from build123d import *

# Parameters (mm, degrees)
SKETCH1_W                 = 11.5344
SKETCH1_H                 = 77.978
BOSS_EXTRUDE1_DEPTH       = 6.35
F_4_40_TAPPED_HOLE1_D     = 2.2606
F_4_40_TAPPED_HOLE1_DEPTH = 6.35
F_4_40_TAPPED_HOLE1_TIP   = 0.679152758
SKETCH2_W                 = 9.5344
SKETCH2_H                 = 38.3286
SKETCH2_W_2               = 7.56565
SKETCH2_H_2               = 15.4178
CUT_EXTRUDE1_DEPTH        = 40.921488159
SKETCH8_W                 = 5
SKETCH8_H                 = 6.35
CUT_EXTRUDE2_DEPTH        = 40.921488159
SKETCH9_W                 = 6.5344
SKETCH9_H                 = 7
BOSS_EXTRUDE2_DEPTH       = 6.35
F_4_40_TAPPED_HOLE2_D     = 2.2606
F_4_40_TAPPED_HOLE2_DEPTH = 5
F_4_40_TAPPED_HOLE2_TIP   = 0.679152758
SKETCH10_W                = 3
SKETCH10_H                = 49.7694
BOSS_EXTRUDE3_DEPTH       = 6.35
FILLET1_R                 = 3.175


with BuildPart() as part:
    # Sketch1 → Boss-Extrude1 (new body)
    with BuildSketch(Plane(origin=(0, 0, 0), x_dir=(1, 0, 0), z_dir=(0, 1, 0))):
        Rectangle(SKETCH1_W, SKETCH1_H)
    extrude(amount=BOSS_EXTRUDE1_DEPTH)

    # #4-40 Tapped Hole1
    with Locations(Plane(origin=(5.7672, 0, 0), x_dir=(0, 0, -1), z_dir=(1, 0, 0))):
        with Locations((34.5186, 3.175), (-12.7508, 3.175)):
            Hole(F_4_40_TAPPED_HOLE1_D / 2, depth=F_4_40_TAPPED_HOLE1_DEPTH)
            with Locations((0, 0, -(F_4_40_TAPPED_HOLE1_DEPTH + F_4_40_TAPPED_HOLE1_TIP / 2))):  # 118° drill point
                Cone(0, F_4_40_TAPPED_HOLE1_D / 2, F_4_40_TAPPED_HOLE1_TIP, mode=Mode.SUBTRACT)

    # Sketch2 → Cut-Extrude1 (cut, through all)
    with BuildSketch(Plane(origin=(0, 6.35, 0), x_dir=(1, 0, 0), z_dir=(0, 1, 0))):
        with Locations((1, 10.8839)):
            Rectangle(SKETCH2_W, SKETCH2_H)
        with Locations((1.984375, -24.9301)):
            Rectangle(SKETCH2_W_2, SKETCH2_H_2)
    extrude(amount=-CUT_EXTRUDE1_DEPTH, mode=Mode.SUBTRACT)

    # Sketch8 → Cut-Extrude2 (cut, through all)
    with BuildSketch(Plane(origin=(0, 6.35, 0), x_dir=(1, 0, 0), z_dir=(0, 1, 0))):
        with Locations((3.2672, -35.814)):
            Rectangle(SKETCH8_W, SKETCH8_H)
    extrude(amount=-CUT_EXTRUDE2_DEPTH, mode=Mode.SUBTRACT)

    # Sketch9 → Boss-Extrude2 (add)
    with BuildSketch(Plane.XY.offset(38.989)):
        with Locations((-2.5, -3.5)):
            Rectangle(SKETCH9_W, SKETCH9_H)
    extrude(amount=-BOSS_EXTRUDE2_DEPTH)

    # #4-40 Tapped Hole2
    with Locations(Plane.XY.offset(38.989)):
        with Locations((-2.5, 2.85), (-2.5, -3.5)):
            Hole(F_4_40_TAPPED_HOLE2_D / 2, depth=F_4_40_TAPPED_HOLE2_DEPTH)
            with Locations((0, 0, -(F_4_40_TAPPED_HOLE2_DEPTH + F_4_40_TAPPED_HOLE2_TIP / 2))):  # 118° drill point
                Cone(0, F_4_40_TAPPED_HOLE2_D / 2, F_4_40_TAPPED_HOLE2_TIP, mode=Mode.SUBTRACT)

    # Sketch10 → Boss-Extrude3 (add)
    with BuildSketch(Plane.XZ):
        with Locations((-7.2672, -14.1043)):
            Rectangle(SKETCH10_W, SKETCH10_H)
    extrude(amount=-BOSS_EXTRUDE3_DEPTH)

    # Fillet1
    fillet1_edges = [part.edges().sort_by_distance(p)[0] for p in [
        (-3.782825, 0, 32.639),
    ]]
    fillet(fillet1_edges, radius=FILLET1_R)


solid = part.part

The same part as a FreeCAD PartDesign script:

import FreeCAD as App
import Part
import Sketcher

V = App.Vector
Q = App.Units.Quantity


def edges_at(feature, points):
    """Names of the edges that pass closest to the given points."""
    edges = feature.Shape.Edges
    near = lambda p: min(range(len(edges)), key=lambda i: edges[i].distToShape(Part.Vertex(*p))[0])
    return sorted({f"Edge{near(p) + 1}" for p in points})

doc = App.newDocument("Part")
body = doc.addObject("PartDesign::Body", "Body")

sketch1 = body.newObject("Sketcher::SketchObject", "Sketch")
sketch1.AttachmentSupport = (doc.getObject("XZ_Plane"), [""])
sketch1.MapMode = "FlatFace"
sketch1.addGeometry([
    Part.LineSegment(V(-6, -39, 0), V(-6, 39, 0)),
    Part.LineSegment(V(-6, 39, 0), V(6, 39, 0)),
    Part.LineSegment(V(6, 39, 0), V(6, -39, 0)),
    Part.LineSegment(V(6, -39, 0), V(-6, -39, 0)),
], False)
sketch1.addConstraint([
    Sketcher.Constraint("Coincident", 0, 2, 1, 1),
    Sketcher.Constraint("Coincident", 1, 2, 2, 1),
    Sketcher.Constraint("Coincident", 2, 2, 3, 1),
    Sketcher.Constraint("Coincident", 3, 2, 0, 1),
    Sketcher.Constraint("Vertical", 0),
    Sketcher.Constraint("Horizontal", 1),
    Sketcher.Constraint("Vertical", 2),
    Sketcher.Constraint("Horizontal", 3),
    Sketcher.Constraint("Symmetric", 0, 2, 2, 2, -1, 1),
    Sketcher.Constraint("DistanceY", 0, 1, 0, 2, Q("3.07 in")),
    Sketcher.Constraint("DistanceX", 1, 1, 1, 2, Q("11.5344 mm")),
])
pad1 = body.newObject("PartDesign::Pad", "Pad")
pad1.Profile = sketch1
pad1.Length = Q("0.25 in")
pad1.Reversed = True

sketch2 = body.newObject("Sketcher::SketchObject", "Sketch001")
sketch2.AttachmentSupport = (doc.getObject("YZ_Plane"), [""])
sketch2.MapMode = "FlatFace"
sketch2.AttachmentOffset = App.Placement(V(0, 0, 5.7672), App.Rotation())
sketch2.addGeometry([
    Part.Circle(V(3.2, -34.5, 0), V(0, 0, 1), 1.1),
    Part.Circle(V(3.2, 12.8, 0), V(0, 0, 1), 1.1),
], False)
sketch2.addConstraint([
    Sketcher.Constraint("Equal", 0, 1),
    Sketcher.Constraint("Vertical", 0, 3, 1, 3),
    Sketcher.Constraint("Diameter", 0, Q("0.089 in")),
    Sketcher.Constraint("DistanceX", -1, 1, 0, 3, Q("0.125 in")),
    Sketcher.Constraint("DistanceY", 0, 3, -1, 1, Q("1.359 in")),
    Sketcher.Constraint("DistanceY", -1, 1, 1, 3, Q("0.502 in")),
])
doc.recompute()
hole = body.newObject("PartDesign::Hole", "Hole")
hole.Profile = sketch2
hole.ThreadType = "None"
hole.Diameter = Q("0.089 in")
hole.DepthType = "Dimension"
hole.Depth = Q("0.25 in")
hole.DrillPoint = "Angled"
hole.DrillPointAngle = 118

sketch3 = body.newObject("Sketcher::SketchObject", "Sketch002")
sketch3.AttachmentSupport = (doc.getObject("XZ_Plane"), [""])
sketch3.MapMode = "FlatFace"
sketch3.AttachmentOffset = App.Placement(V(0, 0, -0.25 * 25.4), App.Rotation())
sketch3.addGeometry([
    Part.LineSegment(V(-4, -30, 0), V(-4, 8, 0)),
    Part.LineSegment(V(-4, 8, 0), V(6, 8, 0)),
    Part.LineSegment(V(6, 8, 0), V(6, -30, 0)),
    Part.LineSegment(V(6, -30, 0), V(-4, -30, 0)),
    Part.LineSegment(V(-2, 17, 0), V(-2, 33, 0)),
    Part.LineSegment(V(-2, 33, 0), V(6, 33, 0)),
    Part.LineSegment(V(6, 33, 0), V(6, 17, 0)),
    Part.LineSegment(V(6, 17, 0), V(-2, 17, 0)),
], False)
sketch3.addConstraint([
    Sketcher.Constraint("Coincident", 0, 2, 1, 1),
    Sketcher.Constraint("Coincident", 1, 2, 2, 1),
    Sketcher.Constraint("Coincident", 2, 2, 3, 1),
    Sketcher.Constraint("Coincident", 3, 2, 0, 1),
    Sketcher.Constraint("Coincident", 4, 2, 5, 1),
    Sketcher.Constraint("Coincident", 5, 2, 6, 1),
    Sketcher.Constraint("Coincident", 6, 2, 7, 1),
    Sketcher.Constraint("Coincident", 7, 2, 4, 1),
    Sketcher.Constraint("Vertical", 0),
    Sketcher.Constraint("Horizontal", 1),
    Sketcher.Constraint("Vertical", 2),
    Sketcher.Constraint("Horizontal", 3),
    Sketcher.Constraint("Vertical", 4),
    Sketcher.Constraint("Horizontal", 5),
    Sketcher.Constraint("Vertical", 6),
    Sketcher.Constraint("Horizontal", 7),
    Sketcher.Constraint("Vertical", 2, 2, 5, 2),
    Sketcher.Constraint("DistanceY", 0, 1, 0, 2, Q("1.509 in")),
    Sketcher.Constraint("DistanceY", 4, 1, 4, 2, Q("0.607 in")),
    Sketcher.Constraint("DistanceY", -1, 1, 0, 2, Q("0.326 in")),
    Sketcher.Constraint("DistanceY", -1, 1, 4, 2, Q("1.285 in")),
    Sketcher.Constraint("DistanceX", 1, 1, 1, 2, Q("9.5344 mm")),
    Sketcher.Constraint("DistanceX", 5, 1, 5, 2, Q("7.56565 mm")),
    Sketcher.Constraint("DistanceX", 0, 2, -1, 1, Q("3.7672 mm")),
])
pocket1 = body.newObject("PartDesign::Pocket", "Pocket")
pocket1.Profile = sketch3
pocket1.Type = "ThroughAll"
pocket1.Reversed = True

sketch4 = body.newObject("Sketcher::SketchObject", "Sketch003")
sketch4.AttachmentSupport = (doc.getObject("XZ_Plane"), [""])
sketch4.MapMode = "FlatFace"
sketch4.AttachmentOffset = App.Placement(V(0, 0, -0.25 * 25.4), App.Rotation())
sketch4.addGeometry([
    Part.LineSegment(V(1, 33, 0), V(1, 39, 0)),
    Part.LineSegment(V(1, 39, 0), V(6, 39, 0)),
    Part.LineSegment(V(6, 39, 0), V(6, 33, 0)),
    Part.LineSegment(V(6, 33, 0), V(1, 33, 0)),
], False)
sketch4.addConstraint([
    Sketcher.Constraint("Coincident", 0, 2, 1, 1),
    Sketcher.Constraint("Coincident", 1, 2, 2, 1),
    Sketcher.Constraint("Coincident", 2, 2, 3, 1),
    Sketcher.Constraint("Coincident", 3, 2, 0, 1),
    Sketcher.Constraint("Vertical", 0),
    Sketcher.Constraint("Horizontal", 1),
    Sketcher.Constraint("Vertical", 2),
    Sketcher.Constraint("Horizontal", 3),
    Sketcher.Constraint("DistanceY", 0, 1, 0, 2, Q("0.25 in")),
    Sketcher.Constraint("DistanceY", -1, 1, 0, 2, Q("1.535 in")),
    Sketcher.Constraint("DistanceX", 1, 1, 1, 2, Q("5 mm")),
    Sketcher.Constraint("DistanceX", -1, 1, 0, 2, Q("0.7672 mm")),
])
pocket2 = body.newObject("PartDesign::Pocket", "Pocket001")
pocket2.Profile = sketch4
pocket2.Type = "ThroughAll"
pocket2.Reversed = True

sketch5 = body.newObject("Sketcher::SketchObject", "Sketch004")
sketch5.AttachmentSupport = (doc.getObject("XY_Plane"), [""])
sketch5.MapMode = "FlatFace"
sketch5.AttachmentOffset = App.Placement(V(0, 0, 1.535 * 25.4), App.Rotation())
sketch5.addGeometry([
    Part.LineSegment(V(-6, 0, 0), V(-6, -7, 0)),
    Part.LineSegment(V(-6, -7, 0), V(1, -7, 0)),
    Part.LineSegment(V(1, -7, 0), V(1, 0, 0)),
    Part.LineSegment(V(1, 0, 0), V(-6, 0, 0)),
], False)
sketch5.addConstraint([
    Sketcher.Constraint("Coincident", 0, 2, 1, 1),
    Sketcher.Constraint("Coincident", 1, 2, 2, 1),
    Sketcher.Constraint("Coincident", 2, 2, 3, 1),
    Sketcher.Constraint("Coincident", 3, 2, 0, 1),
    Sketcher.Constraint("Vertical", 0),
    Sketcher.Constraint("Horizontal", 1),
    Sketcher.Constraint("Vertical", 2),
    Sketcher.Constraint("Horizontal", 3),
    Sketcher.Constraint("PointOnObject", 2, 2, -1),
    Sketcher.Constraint("DistanceX", 1, 1, 1, 2, Q("6.5344 mm")),
    Sketcher.Constraint("DistanceY", 0, 2, 0, 1, Q("7 mm")),
    Sketcher.Constraint("DistanceX", 0, 2, -1, 1, Q("5.7672 mm")),
])
pad2 = body.newObject("PartDesign::Pad", "Pad001")
pad2.Profile = sketch5
pad2.Length = Q("0.25 in")
pad2.Reversed = True

sketch6 = body.newObject("Sketcher::SketchObject", "Sketch005")
sketch6.AttachmentSupport = (doc.getObject("XY_Plane"), [""])
sketch6.MapMode = "FlatFace"
sketch6.AttachmentOffset = App.Placement(V(0, 0, 1.535 * 25.4), App.Rotation())
sketch6.addGeometry([
    Part.Circle(V(-2.5, 2.9, 0), V(0, 0, 1), 1.1),
    Part.Circle(V(-2.5, -3.5, 0), V(0, 0, 1), 1.1),
], False)
sketch6.addConstraint([
    Sketcher.Constraint("Equal", 0, 1),
    Sketcher.Constraint("Vertical", 0, 3, 1, 3),
    Sketcher.Constraint("Diameter", 0, Q("0.089 in")),
    Sketcher.Constraint("DistanceY", 1, 3, 0, 3, Q("0.25 in")),
    Sketcher.Constraint("DistanceX", 0, 3, -1, 1, Q("2.5 mm")),
    Sketcher.Constraint("DistanceY", -1, 1, 0, 3, Q("2.85 mm")),
])
doc.recompute()
hole2 = body.newObject("PartDesign::Hole", "Hole001")
hole2.Profile = sketch6
hole2.ThreadType = "None"
hole2.Diameter = Q("0.089 in")
hole2.DepthType = "Dimension"
hole2.Depth = 5
hole2.DrillPoint = "Angled"
hole2.DrillPointAngle = 118

sketch7 = body.newObject("Sketcher::SketchObject", "Sketch006")
sketch7.AttachmentSupport = (doc.getObject("XZ_Plane"), [""])
sketch7.MapMode = "FlatFace"
sketch7.addGeometry([
    Part.LineSegment(V(-8.8, 10.8, 0), V(-8.8, -39, 0)),
    Part.LineSegment(V(-8.8, -39, 0), V(-5.8, -39, 0)),
    Part.LineSegment(V(-5.8, -39, 0), V(-5.8, 10.8, 0)),
    Part.LineSegment(V(-5.8, 10.8, 0), V(-8.8, 10.8, 0)),
], False)
sketch7.addConstraint([
    Sketcher.Constraint("Coincident", 0, 2, 1, 1),
    Sketcher.Constraint("Coincident", 1, 2, 2, 1),
    Sketcher.Constraint("Coincident", 2, 2, 3, 1),
    Sketcher.Constraint("Coincident", 3, 2, 0, 1),
    Sketcher.Constraint("Vertical", 0),
    Sketcher.Constraint("Horizontal", 1),
    Sketcher.Constraint("Vertical", 2),
    Sketcher.Constraint("Horizontal", 3),
    Sketcher.Constraint("DistanceY", 0, 2, -1, 1, Q("1.535 in")),
    Sketcher.Constraint("DistanceX", 1, 1, 1, 2, Q("3 mm")),
    Sketcher.Constraint("DistanceY", 0, 2, 0, 1, Q("49.7694 mm")),
    Sketcher.Constraint("DistanceX", 0, 2, -1, 1, Q("8.7672 mm")),
])
pad3 = body.newObject("PartDesign::Pad", "Pad002")
pad3.Profile = sketch7
pad3.Length = Q("0.25 in")
pad3.Reversed = True
doc.recompute()

fillet = body.newObject("PartDesign::Fillet", "Fillet")
fillet.Base = (pad3, edges_at(pad3, [(-3.783, 0, 32.639)]))
fillet.Radius = Q("0.125 in")

doc.recompute()
